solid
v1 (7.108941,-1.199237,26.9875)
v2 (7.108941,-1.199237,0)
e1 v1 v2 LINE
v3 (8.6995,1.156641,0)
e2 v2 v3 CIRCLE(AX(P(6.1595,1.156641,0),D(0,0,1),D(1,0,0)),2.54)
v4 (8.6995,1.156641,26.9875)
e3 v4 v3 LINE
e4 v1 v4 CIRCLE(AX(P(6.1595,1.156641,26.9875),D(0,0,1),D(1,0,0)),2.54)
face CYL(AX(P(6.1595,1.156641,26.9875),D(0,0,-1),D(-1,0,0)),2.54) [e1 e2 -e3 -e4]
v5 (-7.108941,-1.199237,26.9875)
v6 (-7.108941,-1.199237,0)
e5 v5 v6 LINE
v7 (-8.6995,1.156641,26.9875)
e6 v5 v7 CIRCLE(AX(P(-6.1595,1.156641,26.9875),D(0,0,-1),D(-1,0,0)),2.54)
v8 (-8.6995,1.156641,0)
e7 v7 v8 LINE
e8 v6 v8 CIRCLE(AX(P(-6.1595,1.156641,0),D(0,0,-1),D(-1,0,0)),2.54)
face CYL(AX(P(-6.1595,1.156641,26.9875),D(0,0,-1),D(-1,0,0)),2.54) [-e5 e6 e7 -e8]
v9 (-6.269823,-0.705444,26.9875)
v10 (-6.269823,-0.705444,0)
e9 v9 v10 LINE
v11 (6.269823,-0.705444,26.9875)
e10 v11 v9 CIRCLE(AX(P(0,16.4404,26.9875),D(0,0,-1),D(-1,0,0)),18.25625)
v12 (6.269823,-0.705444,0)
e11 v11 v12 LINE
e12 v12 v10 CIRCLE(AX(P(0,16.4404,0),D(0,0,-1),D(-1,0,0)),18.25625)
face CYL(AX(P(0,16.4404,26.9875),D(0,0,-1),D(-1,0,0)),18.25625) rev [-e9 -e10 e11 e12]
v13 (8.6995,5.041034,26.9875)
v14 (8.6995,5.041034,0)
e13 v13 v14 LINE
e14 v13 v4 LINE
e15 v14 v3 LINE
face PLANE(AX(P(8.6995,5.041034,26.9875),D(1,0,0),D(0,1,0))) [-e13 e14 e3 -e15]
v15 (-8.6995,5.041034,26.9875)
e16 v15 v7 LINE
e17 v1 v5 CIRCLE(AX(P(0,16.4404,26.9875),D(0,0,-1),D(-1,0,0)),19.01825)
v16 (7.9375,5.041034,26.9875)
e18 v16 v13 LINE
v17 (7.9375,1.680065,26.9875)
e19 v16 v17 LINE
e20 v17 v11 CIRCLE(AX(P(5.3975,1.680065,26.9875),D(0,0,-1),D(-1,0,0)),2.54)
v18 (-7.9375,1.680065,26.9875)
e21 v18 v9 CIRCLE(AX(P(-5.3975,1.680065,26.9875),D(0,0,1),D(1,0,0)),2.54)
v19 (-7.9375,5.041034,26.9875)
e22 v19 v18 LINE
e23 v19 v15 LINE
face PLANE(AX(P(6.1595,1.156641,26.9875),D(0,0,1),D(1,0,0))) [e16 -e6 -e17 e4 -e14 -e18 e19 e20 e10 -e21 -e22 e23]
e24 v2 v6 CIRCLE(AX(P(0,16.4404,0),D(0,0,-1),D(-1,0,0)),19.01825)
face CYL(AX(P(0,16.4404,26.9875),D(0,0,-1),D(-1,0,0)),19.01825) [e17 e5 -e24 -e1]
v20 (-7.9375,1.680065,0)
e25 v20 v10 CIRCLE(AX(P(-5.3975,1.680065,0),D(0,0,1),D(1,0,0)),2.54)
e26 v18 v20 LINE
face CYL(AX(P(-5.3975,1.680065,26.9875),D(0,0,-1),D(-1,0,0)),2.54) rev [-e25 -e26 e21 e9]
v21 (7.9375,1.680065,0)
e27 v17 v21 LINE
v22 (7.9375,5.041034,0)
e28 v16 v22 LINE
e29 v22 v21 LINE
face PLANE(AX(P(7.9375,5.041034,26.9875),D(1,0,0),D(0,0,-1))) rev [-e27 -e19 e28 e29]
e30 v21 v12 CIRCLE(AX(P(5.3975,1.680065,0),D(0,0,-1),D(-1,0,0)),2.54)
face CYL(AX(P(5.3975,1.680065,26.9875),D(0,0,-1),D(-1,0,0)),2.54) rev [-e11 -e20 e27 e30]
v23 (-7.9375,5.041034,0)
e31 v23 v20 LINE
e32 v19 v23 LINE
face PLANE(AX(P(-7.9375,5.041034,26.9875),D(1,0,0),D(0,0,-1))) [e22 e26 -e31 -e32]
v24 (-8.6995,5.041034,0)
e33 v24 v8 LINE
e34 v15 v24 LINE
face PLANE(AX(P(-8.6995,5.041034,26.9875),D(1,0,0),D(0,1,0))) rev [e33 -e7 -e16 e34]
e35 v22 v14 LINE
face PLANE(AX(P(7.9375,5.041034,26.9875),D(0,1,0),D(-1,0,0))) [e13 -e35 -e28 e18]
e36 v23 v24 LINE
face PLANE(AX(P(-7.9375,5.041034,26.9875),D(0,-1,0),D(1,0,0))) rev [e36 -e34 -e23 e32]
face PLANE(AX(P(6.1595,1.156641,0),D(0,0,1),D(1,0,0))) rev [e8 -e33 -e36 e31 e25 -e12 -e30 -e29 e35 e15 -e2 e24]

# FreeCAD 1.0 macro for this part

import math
import FreeCAD as App
import Part
import Sketcher

V = App.Vector
Q = App.Units.Quantity

doc = App.newDocument("Part")
body = doc.addObject("PartDesign::Body", "Body")

# Sketch on XY plane
sketch1 = body.newObject("Sketcher::SketchObject", "Sketch")
sketch1.AttachmentSupport = (doc.getObject("XY_Plane"), [""])
sketch1.MapMode = "FlatFace"
sketch1.addGeometry([
    Part.LineSegment(V(7.9375, 5.041034, 0), V(7.9375, 1.680065, 0)),  # 0
    Part.ArcOfCircle(Part.Circle(V(5.3975, 1.680065, 0), V(0, 0, 1), 2.54), math.radians(-69.913748), math.radians(0)),  # 1
    Part.ArcOfCircle(Part.Circle(V(0, 16.4404, 0), V(0, 0, 1), 18.25625), math.radians(-110.086252), math.radians(-69.913748)),  # 2
    Part.ArcOfCircle(Part.Circle(V(-5.3975, 1.680065, 0), V(0, 0, 1), 2.54), math.radians(-180), math.radians(-110.086252)),  # 3
    Part.LineSegment(V(-7.9375, 1.680065, 0), V(-7.9375, 5.041034, 0)),  # 4
    Part.LineSegment(V(-7.9375, 5.041034, 0), V(-8.6995, 5.041034, 0)),  # 5
    Part.LineSegment(V(-8.6995, 5.041034, 0), V(-8.6995, 1.156641, 0)),  # 6
    Part.ArcOfCircle(Part.Circle(V(-6.1595, 1.156641, 0), V(0, 0, 1), 2.54), math.radians(180), math.radians(248.050097)),  # 7
    Part.ArcOfCircle(Part.Circle(V(0, 16.4404, 0), V(0, 0, 1), 19.01825), math.radians(-111.949903), math.radians(-68.050097)),  # 8
    Part.ArcOfCircle(Part.Circle(V(6.1595, 1.156641, 0), V(0, 0, 1), 2.54), math.radians(-68.050097), math.radians(0)),  # 9
    Part.LineSegment(V(8.6995, 1.156641, 0), V(8.6995, 5.041034, 0)),  # 10
    Part.LineSegment(V(8.6995, 5.041034, 0), V(7.9375, 5.041034, 0)),  # 11
], False)
sketch1.addConstraint([
    Sketcher.Constraint("Tangent", 0, 2, 1, 2),
    Sketcher.Constraint("Tangent", 1, 1, 2, 2),
    Sketcher.Constraint("Tangent", 2, 1, 3, 2),
    Sketcher.Constraint("Tangent", 3, 1, 4, 1),
    Sketcher.Constraint("Coincident", 4, 2, 5, 1),
    Sketcher.Constraint("Coincident", 5, 2, 6, 1),
    Sketcher.Constraint("Tangent", 6, 2, 7, 1),
    Sketcher.Constraint("Tangent", 7, 2, 8, 1),
    Sketcher.Constraint("Tangent", 8, 2, 9, 1),
    Sketcher.Constraint("Tangent", 9, 2, 10, 1),
    Sketcher.Constraint("Coincident", 10, 2, 11, 1),
    Sketcher.Constraint("Coincident", 11, 2, 0, 1),
    Sketcher.Constraint("Vertical", 0),
    Sketcher.Constraint("Vertical", 4),
    Sketcher.Constraint("Horizontal", 5),
    Sketcher.Constraint("Vertical", 6),
    Sketcher.Constraint("Vertical", 10),
    Sketcher.Constraint("Horizontal", 11),
    Sketcher.Constraint("Coincident", 8, 3, 2, 3),
    Sketcher.Constraint("Equal", 1, 3),
    Sketcher.Constraint("Equal", 3, 7),
    Sketcher.Constraint("Equal", 7, 9),
    Sketcher.Constraint("Symmetric", 1, 3, 3, 3, -2),
    Sketcher.Constraint("Symmetric", 5, 2, 10, 2, -2),
    Sketcher.Constraint("Radius", 1, Q("0.1 in")),
    Sketcher.Constraint("Radius", 2, Q("0.71875 in")),
    Sketcher.Constraint("DistanceX", 5, 2, 5, 1, Q("0.03 in")),
    Sketcher.Constraint("DistanceX", -1, 1, 0, 2, Q("0.3125 in")),
    Sketcher.Constraint("Radius", 8, Q("19.01825 mm")),
    Sketcher.Constraint("DistanceY", 0, 2, 0, 1, Q("3.360969 mm")),
    Sketcher.Constraint("DistanceY", -1, 1, 2, 3, Q("16.4404 mm")),
])
pad1 = body.newObject("PartDesign::Pad", "Pad")
pad1.Profile = sketch1
pad1.Length = Q("1.0625 in")

doc.recompute()
